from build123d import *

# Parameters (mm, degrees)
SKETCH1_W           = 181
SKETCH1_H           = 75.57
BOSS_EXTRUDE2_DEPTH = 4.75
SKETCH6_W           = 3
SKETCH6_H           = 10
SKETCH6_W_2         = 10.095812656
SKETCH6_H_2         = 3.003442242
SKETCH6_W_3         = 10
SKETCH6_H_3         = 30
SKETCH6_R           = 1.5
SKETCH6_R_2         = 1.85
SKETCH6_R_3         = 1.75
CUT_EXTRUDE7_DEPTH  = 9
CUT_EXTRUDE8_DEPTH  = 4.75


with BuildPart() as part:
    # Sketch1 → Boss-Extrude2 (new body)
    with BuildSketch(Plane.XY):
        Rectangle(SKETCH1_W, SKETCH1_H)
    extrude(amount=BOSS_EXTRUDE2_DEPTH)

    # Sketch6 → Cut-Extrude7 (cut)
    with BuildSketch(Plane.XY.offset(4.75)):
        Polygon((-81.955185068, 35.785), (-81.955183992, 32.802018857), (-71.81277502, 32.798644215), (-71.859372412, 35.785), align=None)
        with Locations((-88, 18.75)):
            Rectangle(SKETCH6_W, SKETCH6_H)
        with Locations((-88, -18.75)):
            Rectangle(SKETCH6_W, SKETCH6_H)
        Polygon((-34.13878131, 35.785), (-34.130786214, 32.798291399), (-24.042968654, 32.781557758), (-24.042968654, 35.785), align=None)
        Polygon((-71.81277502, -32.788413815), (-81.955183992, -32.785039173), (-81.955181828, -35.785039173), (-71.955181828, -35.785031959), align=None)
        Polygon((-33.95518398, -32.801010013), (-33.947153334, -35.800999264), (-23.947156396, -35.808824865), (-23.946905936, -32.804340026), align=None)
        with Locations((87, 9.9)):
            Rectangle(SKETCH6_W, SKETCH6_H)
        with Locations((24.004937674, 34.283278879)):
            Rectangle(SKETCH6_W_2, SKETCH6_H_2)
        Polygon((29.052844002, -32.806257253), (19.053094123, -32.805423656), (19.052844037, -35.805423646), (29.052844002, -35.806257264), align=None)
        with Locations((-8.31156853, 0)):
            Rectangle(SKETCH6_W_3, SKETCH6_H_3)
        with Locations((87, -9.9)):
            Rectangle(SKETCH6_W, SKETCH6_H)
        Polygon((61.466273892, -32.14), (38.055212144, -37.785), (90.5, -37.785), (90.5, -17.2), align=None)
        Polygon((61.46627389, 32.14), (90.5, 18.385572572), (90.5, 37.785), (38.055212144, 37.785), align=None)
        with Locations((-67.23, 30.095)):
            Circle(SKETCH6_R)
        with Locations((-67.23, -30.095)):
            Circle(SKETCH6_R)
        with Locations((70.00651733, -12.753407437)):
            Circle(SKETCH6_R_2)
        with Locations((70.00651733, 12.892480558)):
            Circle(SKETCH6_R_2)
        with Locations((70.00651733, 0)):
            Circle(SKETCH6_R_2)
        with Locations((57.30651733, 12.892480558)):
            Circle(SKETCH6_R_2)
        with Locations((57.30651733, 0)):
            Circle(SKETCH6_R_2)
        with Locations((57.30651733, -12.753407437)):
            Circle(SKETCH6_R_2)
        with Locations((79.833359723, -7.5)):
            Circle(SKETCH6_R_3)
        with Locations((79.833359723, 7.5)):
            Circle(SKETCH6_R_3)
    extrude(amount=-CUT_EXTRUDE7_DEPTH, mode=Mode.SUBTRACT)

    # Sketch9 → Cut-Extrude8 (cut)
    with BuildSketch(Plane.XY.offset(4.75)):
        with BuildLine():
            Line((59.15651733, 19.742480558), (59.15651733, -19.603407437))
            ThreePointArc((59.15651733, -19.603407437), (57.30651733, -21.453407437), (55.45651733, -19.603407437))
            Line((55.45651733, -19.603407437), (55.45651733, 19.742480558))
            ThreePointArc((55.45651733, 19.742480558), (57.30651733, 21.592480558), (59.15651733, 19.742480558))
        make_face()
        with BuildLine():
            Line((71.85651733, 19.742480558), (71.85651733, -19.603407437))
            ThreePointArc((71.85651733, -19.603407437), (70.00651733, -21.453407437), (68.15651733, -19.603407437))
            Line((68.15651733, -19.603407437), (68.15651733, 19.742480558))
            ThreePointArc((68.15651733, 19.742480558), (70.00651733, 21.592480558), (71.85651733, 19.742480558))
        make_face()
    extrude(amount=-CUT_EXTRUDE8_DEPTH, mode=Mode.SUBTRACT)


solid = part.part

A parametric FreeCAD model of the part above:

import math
import FreeCAD as App
import Part
import Sketcher
from FreeCAD import Vector
Q = App.Units.Quantity

doc = App.newDocument("Part")
body = doc.addObject("PartDesign::Body", "Body")

sketch1 = body.newObject("Sketcher::SketchObject", "Sketch")
sketch1.AttachmentSupport = (doc.getObject("XY_Plane"), [""])
sketch1.MapMode = "FlatFace"
sketch1.addGeometry(Part.LineSegment(Vector(-90, 38, 0), Vector(-90, -38, 0)), False)
sketch1.addGeometry(Part.LineSegment(Vector(-90, -38, 0), Vector(90, -38, 0)), False)
sketch1.addGeometry(Part.LineSegment(Vector(90, -38, 0), Vector(90, 38, 0)), False)
sketch1.addGeometry(Part.LineSegment(Vector(90, 38, 0), Vector(-90, 38, 0)), False)
sketch1.addConstraint(Sketcher.Constraint("Coincident", 0, 2, 1, 1))
sketch1.addConstraint(Sketcher.Constraint("Coincident", 1, 2, 2, 1))
sketch1.addConstraint(Sketcher.Constraint("Coincident", 2, 2, 3, 1))
sketch1.addConstraint(Sketcher.Constraint("Coincident", 3, 2, 0, 1))
sketch1.addConstraint(Sketcher.Constraint("Vertical", 0))
sketch1.addConstraint(Sketcher.Constraint("Horizontal", 1))
sketch1.addConstraint(Sketcher.Constraint("Vertical", 2))
sketch1.addConstraint(Sketcher.Constraint("Horizontal", 3))
sketch1.addConstraint(Sketcher.Constraint("Symmetric", 0, 2, 2, 2, -1, 1))
sketch1.addConstraint(Sketcher.Constraint("DistanceX", 1, 1, 1, 2, Q("181 mm")))
sketch1.addConstraint(Sketcher.Constraint("DistanceY", 0, 2, 0, 1, Q("75.57 mm")))
pad1 = body.newObject("PartDesign::Pad", "Pad")
pad1.Profile = sketch1
pad1.Length = 4.75

sketch2 = body.newObject("Sketcher::SketchObject", "Sketch001")
sketch2.AttachmentSupport = (doc.getObject("XY_Plane"), [""])
sketch2.MapMode = "FlatFace"
sketch2.AttachmentOffset = App.Placement(Vector(0, 0, 4.75), App.Rotation())
sketch2.addGeometry(Part.LineSegment(Vector(-82, 35.8, 0), Vector(-82, 32.8, 0)), False)
sketch2.addGeometry(Part.LineSegment(Vector(-82, 32.8, 0), Vector(-71.8, 32.8, 0)), False)
sketch2.addGeometry(Part.LineSegment(Vector(-71.8, 32.8, 0), Vector(-71.9, 35.8, 0)), False)
sketch2.addGeometry(Part.LineSegment(Vector(-71.9, 35.8, 0), Vector(-82, 35.8, 0)), False)
sketch2.addGeometry(Part.LineSegment(Vector(-89.5, 23.8, 0), Vector(-89.5, 13.8, 0)), False)
sketch2.addGeometry(Part.LineSegment(Vector(-89.5, 13.8, 0), Vector(-86.5, 13.8, 0)), False)
sketch2.addGeometry(Part.LineSegment(Vector(-86.5, 13.8, 0), Vector(-86.5, 23.8, 0)), False)
sketch2.addGeometry(Part.LineSegment(Vector(-86.5, 23.8, 0), Vector(-89.5, 23.8, 0)), False)
sketch2.addGeometry(Part.LineSegment(Vector(-89.5, -13.8, 0), Vector(-89.5, -23.8, 0)), False)
sketch2.addGeometry(Part.LineSegment(Vector(-89.5, -23.8, 0), Vector(-86.5, -23.8, 0)), False)
sketch2.addGeometry(Part.LineSegment(Vector(-86.5, -23.8, 0), Vector(-86.5, -13.8, 0)), False)
sketch2.addGeometry(Part.LineSegment(Vector(-86.5, -13.8, 0), Vector(-89.5, -13.8, 0)), False)
sketch2.addGeometry(Part.LineSegment(Vector(-34.1, 35.8, 0), Vector(-34.1, 32.8, 0)), False)
sketch2.addGeometry(Part.LineSegment(Vector(-34.1, 32.8, 0), Vector(-24, 32.8, 0)), False)
sketch2.addGeometry(Part.LineSegment(Vector(-24, 32.8, 0), Vector(-24, 35.8, 0)), False)
sketch2.addGeometry(Part.LineSegment(Vector(-24, 35.8, 0), Vector(-34.1, 35.8, 0)), False)
sketch2.addGeometry(Part.LineSegment(Vector(-71.8, -32.8, 0), Vector(-82, -32.8, 0)), False)
sketch2.addGeometry(Part.LineSegment(Vector(-82, -32.8, 0), Vector(-82, -35.8, 0)), False)
sketch2.addGeometry(Part.LineSegment(Vector(-82, -35.8, 0), Vector(-72, -35.8, 0)), False)
sketch2.addGeometry(Part.LineSegment(Vector(-72, -35.8, 0), Vector(-71.8, -32.8, 0)), False)
sketch2.addGeometry(Part.LineSegment(Vector(-34, -32.8, 0), Vector(-33.9, -35.8, 0)), False)
sketch2.addGeometry(Part.LineSegment(Vector(-33.9, -35.8, 0), Vector(-23.9, -35.8, 0)), False)
sketch2.addGeometry(Part.LineSegment(Vector(-23.9, -35.8, 0), Vector(-23.9, -32.8, 0)), False)
sketch2.addGeometry(Part.LineSegment(Vector(-23.9, -32.8, 0), Vector(-34, -32.8, 0)), False)
sketch2.addGeometry(Part.LineSegment(Vector(85.5, 14.9, 0), Vector(85.5, 4.9, 0)), False)
sketch2.addGeometry(Part.LineSegment(Vector(85.5, 4.9, 0), Vector(88.5, 4.9, 0)), False)
sketch2.addGeometry(Part.LineSegment(Vector(88.5, 4.9, 0), Vector(88.5, 14.9, 0)), False)
sketch2.addGeometry(Part.LineSegment(Vector(88.5, 14.9, 0), Vector(85.5, 14.9, 0)), False)
sketch2.addGeometry(Part.LineSegment(Vector(19, 35.8, 0), Vector(19, 32.8, 0)), False)
sketch2.addGeometry(Part.LineSegment(Vector(19, 32.8, 0), Vector(29.1, 32.8, 0)), False)
sketch2.addGeometry(Part.LineSegment(Vector(29.1, 32.8, 0), Vector(29.1, 35.8, 0)), False)
sketch2.addGeometry(Part.LineSegment(Vector(29.1, 35.8, 0), Vector(19, 35.8, 0)), False)
sketch2.addGeometry(Part.LineSegment(Vector(29.1, -32.8, 0), Vector(19.1, -32.8, 0)), False)
sketch2.addGeometry(Part.LineSegment(Vector(19.1, -32.8, 0), Vector(19.1, -35.8, 0)), False)
sketch2.addGeometry(Part.LineSegment(Vector(19.1, -35.8, 0), Vector(29.1, -35.8, 0)), False)
sketch2.addGeometry(Part.LineSegment(Vector(29.1, -35.8, 0), Vector(29.1, -32.8, 0)), False)
sketch2.addGeometry(Part.LineSegment(Vector(-13.3, 15, 0), Vector(-13.3, -15, 0)), False)
sketch2.addGeometry(Part.LineSegment(Vector(-13.3, -15, 0), Vector(-3.3, -15, 0)), False)
sketch2.addGeometry(Part.LineSegment(Vector(-3.3, -15, 0), Vector(-3.3, 15, 0)), False)
sketch2.addGeometry(Part.LineSegment(Vector(-3.3, 15, 0), Vector(-13.3, 15, 0)), False)
sketch2.addGeometry(Part.LineSegment(Vector(85.5, -4.9, 0), Vector(85.5, -14.9, 0)), False)
sketch2.addGeometry(Part.LineSegment(Vector(85.5, -14.9, 0), Vector(88.5, -14.9, 0)), False)
sketch2.addGeometry(Part.LineSegment(Vector(88.5, -14.9, 0), Vector(88.5, -4.9, 0)), False)
sketch2.addGeometry(Part.LineSegment(Vector(88.5, -4.9, 0), Vector(85.5, -4.9, 0)), False)
sketch2.addGeometry(Part.LineSegment(Vector(61.5, -32.1, 0), Vector(38.1, -37.8, 0)), False)
sketch2.addGeometry(Part.LineSegment(Vector(38.1, -37.8, 0), Vector(90.5, -37.8, 0)), False)
sketch2.addGeometry(Part.LineSegment(Vector(90.5, -37.8, 0), Vector(90.5, -17.2, 0)), False)
sketch2.addGeometry(Part.LineSegment(Vector(90.5, -17.2, 0), Vector(61.5, -32.1, 0)), False)
sketch2.addGeometry(Part.LineSegment(Vector(61.5, 32.1, 0), Vector(90.5, 18.4, 0)), False)
sketch2.addGeometry(Part.LineSegment(Vector(90.5, 18.4, 0), Vector(90.5, 37.8, 0)), False)
sketch2.addGeometry(Part.LineSegment(Vector(90.5, 37.8, 0), Vector(38.1, 37.8, 0)), False)
sketch2.addGeometry(Part.LineSegment(Vector(38.1, 37.8, 0), Vector(61.5, 32.1, 0)), False)
sketch2.addGeometry(Part.Circle(Vector(-67.2, 30.1, 0), Vector(0, 0, 1), 1.5), False)
sketch2.addGeometry(Part.Circle(Vector(-67.2, -30.1, 0), Vector(0, 0, 1), 1.5), False)
sketch2.addGeometry(Part.Circle(Vector(70, -12.8, 0), Vector(0, 0, 1), 1.9), False)
sketch2.addGeometry(Part.Circle(Vector(70, 12.9, 0), Vector(0, 0, 1), 1.9), False)
sketch2.addGeometry(Part.Circle(Vector(70, 0, 0), Vector(0, 0, 1), 1.9), False)
sketch2.addGeometry(Part.Circle(Vector(57.3, 12.9, 0), Vector(0, 0, 1), 1.9), False)
sketch2.addGeometry(Part.Circle(Vector(57.3, 0, 0), Vector(0, 0, 1), 1.9), False)
sketch2.addGeometry(Part.Circle(Vector(57.3, -12.8, 0), Vector(0, 0, 1), 1.9), False)
sketch2.addGeometry(Part.Circle(Vector(79.8, -7.5, 0), Vector(0, 0, 1), 1.8), False)
sketch2.addGeometry(Part.Circle(Vector(79.8, 7.5, 0), Vector(0, 0, 1), 1.8), False)
sketch2.addConstraint(Sketcher.Constraint("Coincident", 0, 2, 1, 1))
sketch2.addConstraint(Sketcher.Constraint("Coincident", 1, 2, 2, 1))
sketch2.addConstraint(Sketcher.Constraint("Coincident", 2, 2, 3, 1))
sketch2.addConstraint(Sketcher.Constraint("Coincident", 3, 2, 0, 1))
sketch2.addConstraint(Sketcher.Constraint("Coincident", 4, 2, 5, 1))
sketch2.addConstraint(Sketcher.Constraint("Coincident", 5, 2, 6, 1))
sketch2.addConstraint(Sketcher.Constraint("Coincident", 6, 2, 7, 1))
sketch2.addConstraint(Sketcher.Constraint("Coincident", 7, 2, 4, 1))
sketch2.addConstraint(Sketcher.Constraint("Coincident", 8, 2, 9, 1))
sketch2.addConstraint(Sketcher.Constraint("Coincident", 9, 2, 10, 1))
sketch2.addConstraint(Sketcher.Constraint("Coincident", 10, 2, 11, 1))
sketch2.addConstraint(Sketcher.Constraint("Coincident", 11, 2, 8, 1))
sketch2.addConstraint(Sketcher.Constraint("Coincident", 12, 2, 13, 1))
sketch2.addConstraint(Sketcher.Constraint("Coincident", 13, 2, 14, 1))
sketch2.addConstraint(Sketcher.Constraint("Coincident", 14, 2, 15, 1))
sketch2.addConstraint(Sketcher.Constraint("Coincident", 15, 2, 12, 1))
sketch2.addConstraint(Sketcher.Constraint("Coincident", 16, 2, 17, 1))
sketch2.addConstraint(Sketcher.Constraint("Coincident", 17, 2, 18, 1))
sketch2.addConstraint(Sketcher.Constraint("Coincident", 18, 2, 19, 1))
sketch2.addConstraint(Sketcher.Constraint("Coincident", 19, 2, 16, 1))
sketch2.addConstraint(Sketcher.Constraint("Coincident", 20, 2, 21, 1))
sketch2.addConstraint(Sketcher.Constraint("Coincident", 21, 2, 22, 1))
sketch2.addConstraint(Sketcher.Constraint("Coincident", 22, 2, 23, 1))
sketch2.addConstraint(Sketcher.Constraint("Coincident", 23, 2, 20, 1))
sketch2.addConstraint(Sketcher.Constraint("Coincident", 24, 2, 25, 1))
sketch2.addConstraint(Sketcher.Constraint("Coincident", 25, 2, 26, 1))
sketch2.addConstraint(Sketcher.Constraint("Coincident", 26, 2, 27, 1))
sketch2.addConstraint(Sketcher.Constraint("Coincident", 27, 2, 24, 1))
sketch2.addConstraint(Sketcher.Constraint("Coincident", 28, 2, 29, 1))
sketch2.addConstraint(Sketcher.Constraint("Coincident", 29, 2, 30, 1))
sketch2.addConstraint(Sketcher.Constraint("Coincident", 30, 2, 31, 1))
sketch2.addConstraint(Sketcher.Constraint("Coincident", 31, 2, 28, 1))
sketch2.addConstraint(Sketcher.Constraint("Coincident", 32, 2, 33, 1))
sketch2.addConstraint(Sketcher.Constraint("Coincident", 33, 2, 34, 1))
sketch2.addConstraint(Sketcher.Constraint("Coincident", 34, 2, 35, 1))
sketch2.addConstraint(Sketcher.Constraint("Coincident", 35, 2, 32, 1))
sketch2.addConstraint(Sketcher.Constraint("Coincident", 36, 2, 37, 1))
sketch2.addConstraint(Sketcher.Constraint("Coincident", 37, 2, 38, 1))
sketch2.addConstraint(Sketcher.Constraint("Coincident", 38, 2, 39, 1))
sketch2.addConstraint(Sketcher.Constraint("Coincident", 39, 2, 36, 1))
sketch2.addConstraint(Sketcher.Constraint("Coincident", 40, 2, 41, 1))
sketch2.addConstraint(Sketcher.Constraint("Coincident", 41, 2, 42, 1))
sketch2.addConstraint(Sketcher.Constraint("Coincident", 42, 2, 43, 1))
sketch2.addConstraint(Sketcher.Constraint("Coincident", 43, 2, 40, 1))
sketch2.addConstraint(Sketcher.Constraint("Coincident", 44, 2, 45, 1))
sketch2.addConstraint(Sketcher.Constraint("Coincident", 45, 2, 46, 1))
sketch2.addConstraint(Sketcher.Constraint("Coincident", 46, 2, 47, 1))
sketch2.addConstraint(Sketcher.Constraint("Coincident", 47, 2, 44, 1))
sketch2.addConstraint(Sketcher.Constraint("Coincident", 48, 2, 49, 1))
sketch2.addConstraint(Sketcher.Constraint("Coincident", 49, 2, 50, 1))
sketch2.addConstraint(Sketcher.Constraint("Coincident", 50, 2, 51, 1))
sketch2.addConstraint(Sketcher.Constraint("Coincident", 51, 2, 48, 1))
sketch2.addConstraint(Sketcher.Constraint("Vertical", 0))
sketch2.addConstraint(Sketcher.Constraint("Horizontal", 3))
sketch2.addConstraint(Sketcher.Constraint("Vertical", 4))
sketch2.addConstraint(Sketcher.Constraint("Horizontal", 5))
sketch2.addConstraint(Sketcher.Constraint("Vertical", 6))
sketch2.addConstraint(Sketcher.Constraint("Horizontal", 7))
sketch2.addConstraint(Sketcher.Constraint("Vertical", 8))
sketch2.addConstraint(Sketcher.Constraint("Horizontal", 9))
sketch2.addConstraint(Sketcher.Constraint("Vertical", 10))
sketch2.addConstraint(Sketcher.Constraint("Horizontal", 11))
sketch2.addConstraint(Sketcher.Constraint("Vertical", 14))
sketch2.addConstraint(Sketcher.Constraint("Horizontal", 15))
sketch2.addConstraint(Sketcher.Constraint("Vertical", 24))
sketch2.addConstraint(Sketcher.Constraint("Horizontal", 25))
sketch2.addConstraint(Sketcher.Constraint("Vertical", 26))
sketch2.addConstraint(Sketcher.Constraint("Horizontal", 27))
sketch2.addConstraint(Sketcher.Constraint("Vertical", 28))
sketch2.addConstraint(Sketcher.Constraint("Horizontal", 29))
sketch2.addConstraint(Sketcher.Constraint("Vertical", 30))
sketch2.addConstraint(Sketcher.Constraint("Horizontal", 31))
sketch2.addConstraint(Sketcher.Constraint("Vertical", 35))
sketch2.addConstraint(Sketcher.Constraint("Vertical", 36))
sketch2.addConstraint(Sketcher.Constraint("Horizontal", 37))
sketch2.addConstraint(Sketcher.Constraint("Vertical", 38))
sketch2.addConstraint(Sketcher.Constraint("Horizontal", 39))
sketch2.addConstraint(Sketcher.Constraint("Vertical", 40))
sketch2.addConstraint(Sketcher.Constraint("Horizontal", 41))
sketch2.addConstraint(Sketcher.Constraint("Vertical", 42))
sketch2.addConstraint(Sketcher.Constraint("Horizontal", 43))
sketch2.addConstraint(Sketcher.Constraint("Horizontal", 45))
sketch2.addConstraint(Sketcher.Constraint("Vertical", 46))
sketch2.addConstraint(Sketcher.Constraint("Vertical", 49))
sketch2.addConstraint(Sketcher.Constraint("Horizontal", 50))
sketch2.addConstraint(Sketcher.Constraint("Equal", 52, 53))
sketch2.addConstraint(Sketcher.Constraint("Equal", 54, 55))
sketch2.addConstraint(Sketcher.Constraint("Equal", 55, 56))
sketch2.addConstraint(Sketcher.Constraint("Equal", 56, 57))
sketch2.addConstraint(Sketcher.Constraint("Equal", 57, 58))
sketch2.addConstraint(Sketcher.Constraint("Equal", 58, 59))
sketch2.addConstraint(Sketcher.Constraint("Equal", 60, 61))
sketch2.addConstraint(Sketcher.Constraint("Symmetric", 52, 3, 53, 3, -1))
sketch2.addConstraint(Sketcher.Constraint("Symmetric", 60, 3, 61, 3, -1))
sketch2.addConstraint(Sketcher.Constraint("Symmetric", 7, 2, 8, 2, -1))
sketch2.addConstraint(Sketcher.Constraint("Symmetric", 5, 2, 10, 2, -1))
sketch2.addConstraint(Sketcher.Constraint("Symmetric", 27, 2, 40, 2, -1))
sketch2.addConstraint(Sketcher.Constraint("Symmetric", 25, 2, 42, 2, -1))
sketch2.addConstraint(Sketcher.Constraint("Symmetric", 45, 2, 49, 2, -1))
sketch2.addConstraint(Sketcher.Constraint("Symmetric", 47, 2, 51, 2, -1))
sketch2.addConstraint(Sketcher.Constraint("PointOnObject", 56, 3, -1))
sketch2.addConstraint(Sketcher.Constraint("PointOnObject", 58, 3, -1))
sketch2.addConstraint(Sketcher.Constraint("Parallel", 1, 16))
sketch2.addConstraint(Sketcher.Constraint("Perpendicular", 17, 18))
sketch2.addConstraint(Sketcher.Constraint("Parallel", 12, 20))
sketch2.addConstraint(Sketcher.Constraint("Parallel", 16, 23))
sketch2.addConstraint(Sketcher.Constraint("Perpendicular", 22, 32))
sketch2.addConstraint(Sketcher.Constraint("Perpendicular", 32, 33))
sketch2.addConstraint(Sketcher.Constraint("Perpendicular", 33, 34))
sketch2.addConstraint(Sketcher.Constraint("Horizontal", 55, 3, 57, 3))
sketch2.addConstraint(Sketcher.Constraint("Horizontal", 54, 3, 59, 3))
sketch2.addConstraint(Sketcher.Constraint("Horizontal", 3, 2, 14, 2))
sketch2.addConstraint(Sketcher.Constraint("Horizontal", 13, 2, 28, 2))
sketch2.addConstraint(Sketcher.Constraint("Horizontal", 15, 2, 30, 2))
sketch2.addConstraint(Sketcher.Constraint("Vertical", 54, 3, 55, 3))
sketch2.addConstraint(Sketcher.Constraint("Vertical", 55, 3, 56, 3))
sketch2.addConstraint(Sketcher.Constraint("Vertical", 57, 3, 58, 3))
sketch2.addConstraint(Sketcher.Constraint("Vertical", 58, 3, 59, 3))
sketch2.addConstraint(Sketcher.Constraint("Vertical", 3, 2, 16, 2))
sketch2.addConstraint(Sketcher.Constraint("Vertical", 1, 2, 19, 2))
sketch2.addConstraint(Sketcher.Constraint("Vertical", 30, 2, 34, 2))
sketch2.addConstraint(Sketcher.Constraint("Vertical", 44, 2, 50, 2))
sketch2.addConstraint(Sketcher.Constraint("Equal", 3, 15))
sketch2.addConstraint(Sketcher.Constraint("Equal", 11, 25))
sketch2.addConstraint(Sketcher.Constraint("Equal", 15, 29))
sketch2.addConstraint(Sketcher.Constraint("Equal", 39, 4))
sketch2.addConstraint(Sketcher.Constraint("Equal", 10, 24))
sketch2.addConstraint(Sketcher.Constraint("Equal", 43, 35))
sketch2.addConstraint(Sketcher.Constraint("Equal", 2, 12))
sketch2.addConstraint(Sketcher.Constraint("Equal", 17, 19))
sketch2.addConstraint(Sketcher.Constraint("Equal", 19, 20))
sketch2.addConstraint(Sketcher.Constraint("Equal", 18, 21))
sketch2.addConstraint(Sketcher.Constraint("Equal", 20, 33))
sketch2.addConstraint(Sketcher.Constraint("Equal", 21, 34))
sketch2.addConstraint(Sketcher.Constraint("Diameter", 52, Q("3 mm")))
sketch2.addConstraint(Sketcher.Constraint("Diameter", 54, Q("3.7 mm")))
sketch2.addConstraint(Sketcher.Constraint("Diameter", 60, Q("3.5 mm")))
sketch2.addConstraint(Sketcher.Constraint("DistanceX", 5, 1, 5, 2, Q("3 mm")))
sketch2.addConstraint(Sketcher.Constraint("DistanceX", 37, 1, 37, 2, Q("10 mm")))
sketch2.addConstraint(Sketcher.Constraint("DistanceY", 36, 2, 36, 1, Q("30 mm")))
sketch2.addConstraint(Sketcher.Constraint("Distance", 18, Q("10 mm")))
sketch2.addConstraint(Sketcher.Constraint("DistanceY", 36, 2, -1, 1, Q("15 mm")))
sketch2.addConstraint(Sketcher.Constraint("DistanceY", 60, 3, -1, 1, Q("7.5 mm")))
sketch2.addConstraint(Sketcher.Constraint("DistanceX", 4, 2, -1, 1, Q("89.5 mm")))
sketch2.addConstraint(Sketcher.Constraint("DistanceX", -1, 1, 24, 2, Q("85.5 mm")))
sketch2.addConstraint(Sketcher.Constraint("DistanceY", -1, 1, 24, 2, Q("4.9 mm")))
sketch2.addConstraint(Sketcher.Constraint("DistanceX", -1, 1, 45, 2, Q("90.5 mm")))
sketch2.addConstraint(Sketcher.Constraint("DistanceY", 46, 2, -1, 1, Q("17.2 mm")))
sketch2.addConstraint(Sketcher.Constraint("DistanceY", 46, 1, 46, 2, Q("20.585 mm")))
sketch2.addConstraint(Sketcher.Constraint("DistanceX", 52, 3, -1, 1, Q("67.23 mm")))
sketch2.addConstraint(Sketcher.Constraint("DistanceY", -1, 1, 4, 2, Q("13.75 mm")))
sketch2.addConstraint(Sketcher.Constraint("DistanceY", 47, 2, -1, 1, Q("32.14 mm")))
sketch2.addConstraint(Sketcher.Constraint("DistanceY", -1, 1, 52, 3, Q("30.095 mm")))
sketch2.addConstraint(Sketcher.Constraint("DistanceY", -1, 1, 2, 2, Q("35.785 mm")))
sketch2.addConstraint(Sketcher.Constraint("DistanceY", 20, 2, -1, 1, Q("35.800999 mm")))
sketch2.addConstraint(Sketcher.Constraint("DistanceY", 0, 2, 0, 1, Q("2.982981 mm")))
sketch2.addConstraint(Sketcher.Constraint("Distance", 1, Q("10.14241 mm")))
sketch2.addConstraint(Sketcher.Constraint("Distance", 2, Q("2.986719 mm")))
sketch2.addConstraint(Sketcher.Constraint("Distance", 13, Q("10.087831 mm")))
sketch2.addConstraint(Sketcher.Constraint("Distance", 23, Q("10.008279 mm")))
sketch2.addConstraint(Sketcher.Constraint("Distance", 32, Q("9.99975 mm")))
sketch2.addConstraint(Sketcher.Constraint("Distance", 47, Q("32.652119 mm")))
sketch2.addConstraint(Sketcher.Constraint("Distance", 48, Q("32.126959 mm")))
sketch2.addConstraint(Sketcher.Constraint("DistanceX", 45, 1, 45, 2, Q("52.444788 mm")))
sketch2.addConstraint(Sketcher.Constraint("DistanceY", 14, 1, 14, 2, Q("3.003442 mm")))
sketch2.addConstraint(Sketcher.Constraint("DistanceY", -1, 1, 55, 3, Q("12.892481 mm")))
sketch2.addConstraint(Sketcher.Constraint("DistanceX", -1, 1, 60, 3, Q("79.83336 mm")))
sketch2.addConstraint(Sketcher.Constraint("DistanceX", 13, 2, -1, 1, Q("24.042969 mm")))
sketch2.addConstraint(Sketcher.Constraint("DistanceY", 16, 2, -1, 1, Q("32.785039 mm")))
sketch2.addConstraint(Sketcher.Constraint("DistanceX", 17, 2, -1, 1, Q("81.955182 mm")))
sketch2.addConstraint(Sketcher.Constraint("DistanceX", -1, 1, 28, 2, Q("18.957031 mm")))
sketch2.addConstraint(Sketcher.Constraint("DistanceX", 36, 2, -1, 1, Q("13.311569 mm")))
sketch2.addConstraint(Sketcher.Constraint("Distance", 22, Q("3.004485 mm")))
sketch2.addConstraint(Sketcher.Constraint("DistanceX", -1, 1, 54, 3, Q("70.006517 mm")))
sketch2.addConstraint(Sketcher.Constraint("DistanceY", 54, 3, -1, 1, Q("12.753407 mm")))
sketch2.addConstraint(Sketcher.Constraint("DistanceX", -1, 1, 57, 3, Q("57.306517 mm")))
sketch2.addConstraint(Sketcher.Constraint("DistanceX", 20, 2, -1, 1, Q("33.947153 mm")))
sketch2.addConstraint(Sketcher.Constraint("DistanceY", 32, 2, -1, 1, Q("32.805424 mm")))
pocket1 = body.newObject("PartDesign::Pocket", "Pocket")
pocket1.Profile = sketch2
pocket1.Length = 9

sketch3 = body.newObject("Sketcher::SketchObject", "Sketch002")
sketch3.AttachmentSupport = (doc.getObject("XY_Plane"), [""])
sketch3.MapMode = "FlatFace"
sketch3.AttachmentOffset = App.Placement(Vector(0, 0, 4.75), App.Rotation())
sketch3.addGeometry(Part.LineSegment(Vector(59.2, -19.6, 0), Vector(59.2, 19.7, 0)), False)
sketch3.addGeometry(Part.ArcOfCircle(Part.Circle(Vector(57.3, 19.7, 0), Vector(0, 0, 1), 1.9), math.radians(0), math.radians(180)), False)
sketch3.addGeometry(Part.LineSegment(Vector(55.5, 19.7, 0), Vector(55.5, -19.6, 0)), False)
sketch3.addGeometry(Part.ArcOfCircle(Part.Circle(Vector(57.3, -19.6, 0), Vector(0, 0, 1), 1.9), math.radians(180), math.radians(360)), False)
sketch3.addGeometry(Part.LineSegment(Vector(71.9, -19.6, 0), Vector(71.9, 19.7, 0)), False)
sketch3.addGeometry(Part.ArcOfCircle(Part.Circle(Vector(70, 19.7, 0), Vector(0, 0, 1), 1.9), math.radians(0), math.radians(180)), False)
sketch3.addGeometry(Part.LineSegment(Vector(68.2, 19.7, 0), Vector(68.2, -19.6, 0)), False)
sketch3.addGeometry(Part.ArcOfCircle(Part.Circle(Vector(70, -19.6, 0), Vector(0, 0, 1), 1.9), math.radians(180), math.radians(360)), False)
sketch3.addConstraint(Sketcher.Constraint("Tangent", 0, 2, 1, 1))
sketch3.addConstraint(Sketcher.Constraint("Tangent", 1, 2, 2, 1))
sketch3.addConstraint(Sketcher.Constraint("Tangent", 2, 2, 3, 1))
sketch3.addConstraint(Sketcher.Constraint("Tangent", 3, 2, 0, 1))
sketch3.addConstraint(Sketcher.Constraint("Tangent", 4, 2, 5, 1))
sketch3.addConstraint(Sketcher.Constraint("Tangent", 5, 2, 6, 1))
sketch3.addConstraint(Sketcher.Constraint("Tangent", 6, 2, 7, 1))
sketch3.addConstraint(Sketcher.Constraint("Tangent", 7, 2, 4, 1))
sketch3.addConstraint(Sketcher.Constraint("Vertical", 0))
sketch3.addConstraint(Sketcher.Constraint("Vertical", 2))
sketch3.addConstraint(Sketcher.Constraint("Vertical", 4))
sketch3.addConstraint(Sketcher.Constraint("Vertical", 6))
sketch3.addConstraint(Sketcher.Constraint("Equal", 3, 5))
sketch3.addConstraint(Sketcher.Constraint("Horizontal", 1, 3, 5, 3))
sketch3.addConstraint(Sketcher.Constraint("Horizontal", 3, 3, 7, 3))
sketch3.addConstraint(Sketcher.Constraint("Radius", 1, Q("1.85 mm")))
sketch3.addConstraint(Sketcher.Constraint("DistanceX", 0, 2, 5, 2, Q("9 mm")))
sketch3.addConstraint(Sketcher.Constraint("DistanceY", 0, 1, 0, 2, Q("39.345888 mm")))
sketch3.addConstraint(Sketcher.Constraint("DistanceY", -1, 1, 1, 3, Q("19.742481 mm")))
sketch3.addConstraint(Sketcher.Constraint("DistanceX", -1, 1, 1, 3, Q("57.306517 mm")))
pocket2 = body.newObject("PartDesign::Pocket", "Pocket001")
pocket2.Profile = sketch3
pocket2.Length = 4.75

doc.recompute()
